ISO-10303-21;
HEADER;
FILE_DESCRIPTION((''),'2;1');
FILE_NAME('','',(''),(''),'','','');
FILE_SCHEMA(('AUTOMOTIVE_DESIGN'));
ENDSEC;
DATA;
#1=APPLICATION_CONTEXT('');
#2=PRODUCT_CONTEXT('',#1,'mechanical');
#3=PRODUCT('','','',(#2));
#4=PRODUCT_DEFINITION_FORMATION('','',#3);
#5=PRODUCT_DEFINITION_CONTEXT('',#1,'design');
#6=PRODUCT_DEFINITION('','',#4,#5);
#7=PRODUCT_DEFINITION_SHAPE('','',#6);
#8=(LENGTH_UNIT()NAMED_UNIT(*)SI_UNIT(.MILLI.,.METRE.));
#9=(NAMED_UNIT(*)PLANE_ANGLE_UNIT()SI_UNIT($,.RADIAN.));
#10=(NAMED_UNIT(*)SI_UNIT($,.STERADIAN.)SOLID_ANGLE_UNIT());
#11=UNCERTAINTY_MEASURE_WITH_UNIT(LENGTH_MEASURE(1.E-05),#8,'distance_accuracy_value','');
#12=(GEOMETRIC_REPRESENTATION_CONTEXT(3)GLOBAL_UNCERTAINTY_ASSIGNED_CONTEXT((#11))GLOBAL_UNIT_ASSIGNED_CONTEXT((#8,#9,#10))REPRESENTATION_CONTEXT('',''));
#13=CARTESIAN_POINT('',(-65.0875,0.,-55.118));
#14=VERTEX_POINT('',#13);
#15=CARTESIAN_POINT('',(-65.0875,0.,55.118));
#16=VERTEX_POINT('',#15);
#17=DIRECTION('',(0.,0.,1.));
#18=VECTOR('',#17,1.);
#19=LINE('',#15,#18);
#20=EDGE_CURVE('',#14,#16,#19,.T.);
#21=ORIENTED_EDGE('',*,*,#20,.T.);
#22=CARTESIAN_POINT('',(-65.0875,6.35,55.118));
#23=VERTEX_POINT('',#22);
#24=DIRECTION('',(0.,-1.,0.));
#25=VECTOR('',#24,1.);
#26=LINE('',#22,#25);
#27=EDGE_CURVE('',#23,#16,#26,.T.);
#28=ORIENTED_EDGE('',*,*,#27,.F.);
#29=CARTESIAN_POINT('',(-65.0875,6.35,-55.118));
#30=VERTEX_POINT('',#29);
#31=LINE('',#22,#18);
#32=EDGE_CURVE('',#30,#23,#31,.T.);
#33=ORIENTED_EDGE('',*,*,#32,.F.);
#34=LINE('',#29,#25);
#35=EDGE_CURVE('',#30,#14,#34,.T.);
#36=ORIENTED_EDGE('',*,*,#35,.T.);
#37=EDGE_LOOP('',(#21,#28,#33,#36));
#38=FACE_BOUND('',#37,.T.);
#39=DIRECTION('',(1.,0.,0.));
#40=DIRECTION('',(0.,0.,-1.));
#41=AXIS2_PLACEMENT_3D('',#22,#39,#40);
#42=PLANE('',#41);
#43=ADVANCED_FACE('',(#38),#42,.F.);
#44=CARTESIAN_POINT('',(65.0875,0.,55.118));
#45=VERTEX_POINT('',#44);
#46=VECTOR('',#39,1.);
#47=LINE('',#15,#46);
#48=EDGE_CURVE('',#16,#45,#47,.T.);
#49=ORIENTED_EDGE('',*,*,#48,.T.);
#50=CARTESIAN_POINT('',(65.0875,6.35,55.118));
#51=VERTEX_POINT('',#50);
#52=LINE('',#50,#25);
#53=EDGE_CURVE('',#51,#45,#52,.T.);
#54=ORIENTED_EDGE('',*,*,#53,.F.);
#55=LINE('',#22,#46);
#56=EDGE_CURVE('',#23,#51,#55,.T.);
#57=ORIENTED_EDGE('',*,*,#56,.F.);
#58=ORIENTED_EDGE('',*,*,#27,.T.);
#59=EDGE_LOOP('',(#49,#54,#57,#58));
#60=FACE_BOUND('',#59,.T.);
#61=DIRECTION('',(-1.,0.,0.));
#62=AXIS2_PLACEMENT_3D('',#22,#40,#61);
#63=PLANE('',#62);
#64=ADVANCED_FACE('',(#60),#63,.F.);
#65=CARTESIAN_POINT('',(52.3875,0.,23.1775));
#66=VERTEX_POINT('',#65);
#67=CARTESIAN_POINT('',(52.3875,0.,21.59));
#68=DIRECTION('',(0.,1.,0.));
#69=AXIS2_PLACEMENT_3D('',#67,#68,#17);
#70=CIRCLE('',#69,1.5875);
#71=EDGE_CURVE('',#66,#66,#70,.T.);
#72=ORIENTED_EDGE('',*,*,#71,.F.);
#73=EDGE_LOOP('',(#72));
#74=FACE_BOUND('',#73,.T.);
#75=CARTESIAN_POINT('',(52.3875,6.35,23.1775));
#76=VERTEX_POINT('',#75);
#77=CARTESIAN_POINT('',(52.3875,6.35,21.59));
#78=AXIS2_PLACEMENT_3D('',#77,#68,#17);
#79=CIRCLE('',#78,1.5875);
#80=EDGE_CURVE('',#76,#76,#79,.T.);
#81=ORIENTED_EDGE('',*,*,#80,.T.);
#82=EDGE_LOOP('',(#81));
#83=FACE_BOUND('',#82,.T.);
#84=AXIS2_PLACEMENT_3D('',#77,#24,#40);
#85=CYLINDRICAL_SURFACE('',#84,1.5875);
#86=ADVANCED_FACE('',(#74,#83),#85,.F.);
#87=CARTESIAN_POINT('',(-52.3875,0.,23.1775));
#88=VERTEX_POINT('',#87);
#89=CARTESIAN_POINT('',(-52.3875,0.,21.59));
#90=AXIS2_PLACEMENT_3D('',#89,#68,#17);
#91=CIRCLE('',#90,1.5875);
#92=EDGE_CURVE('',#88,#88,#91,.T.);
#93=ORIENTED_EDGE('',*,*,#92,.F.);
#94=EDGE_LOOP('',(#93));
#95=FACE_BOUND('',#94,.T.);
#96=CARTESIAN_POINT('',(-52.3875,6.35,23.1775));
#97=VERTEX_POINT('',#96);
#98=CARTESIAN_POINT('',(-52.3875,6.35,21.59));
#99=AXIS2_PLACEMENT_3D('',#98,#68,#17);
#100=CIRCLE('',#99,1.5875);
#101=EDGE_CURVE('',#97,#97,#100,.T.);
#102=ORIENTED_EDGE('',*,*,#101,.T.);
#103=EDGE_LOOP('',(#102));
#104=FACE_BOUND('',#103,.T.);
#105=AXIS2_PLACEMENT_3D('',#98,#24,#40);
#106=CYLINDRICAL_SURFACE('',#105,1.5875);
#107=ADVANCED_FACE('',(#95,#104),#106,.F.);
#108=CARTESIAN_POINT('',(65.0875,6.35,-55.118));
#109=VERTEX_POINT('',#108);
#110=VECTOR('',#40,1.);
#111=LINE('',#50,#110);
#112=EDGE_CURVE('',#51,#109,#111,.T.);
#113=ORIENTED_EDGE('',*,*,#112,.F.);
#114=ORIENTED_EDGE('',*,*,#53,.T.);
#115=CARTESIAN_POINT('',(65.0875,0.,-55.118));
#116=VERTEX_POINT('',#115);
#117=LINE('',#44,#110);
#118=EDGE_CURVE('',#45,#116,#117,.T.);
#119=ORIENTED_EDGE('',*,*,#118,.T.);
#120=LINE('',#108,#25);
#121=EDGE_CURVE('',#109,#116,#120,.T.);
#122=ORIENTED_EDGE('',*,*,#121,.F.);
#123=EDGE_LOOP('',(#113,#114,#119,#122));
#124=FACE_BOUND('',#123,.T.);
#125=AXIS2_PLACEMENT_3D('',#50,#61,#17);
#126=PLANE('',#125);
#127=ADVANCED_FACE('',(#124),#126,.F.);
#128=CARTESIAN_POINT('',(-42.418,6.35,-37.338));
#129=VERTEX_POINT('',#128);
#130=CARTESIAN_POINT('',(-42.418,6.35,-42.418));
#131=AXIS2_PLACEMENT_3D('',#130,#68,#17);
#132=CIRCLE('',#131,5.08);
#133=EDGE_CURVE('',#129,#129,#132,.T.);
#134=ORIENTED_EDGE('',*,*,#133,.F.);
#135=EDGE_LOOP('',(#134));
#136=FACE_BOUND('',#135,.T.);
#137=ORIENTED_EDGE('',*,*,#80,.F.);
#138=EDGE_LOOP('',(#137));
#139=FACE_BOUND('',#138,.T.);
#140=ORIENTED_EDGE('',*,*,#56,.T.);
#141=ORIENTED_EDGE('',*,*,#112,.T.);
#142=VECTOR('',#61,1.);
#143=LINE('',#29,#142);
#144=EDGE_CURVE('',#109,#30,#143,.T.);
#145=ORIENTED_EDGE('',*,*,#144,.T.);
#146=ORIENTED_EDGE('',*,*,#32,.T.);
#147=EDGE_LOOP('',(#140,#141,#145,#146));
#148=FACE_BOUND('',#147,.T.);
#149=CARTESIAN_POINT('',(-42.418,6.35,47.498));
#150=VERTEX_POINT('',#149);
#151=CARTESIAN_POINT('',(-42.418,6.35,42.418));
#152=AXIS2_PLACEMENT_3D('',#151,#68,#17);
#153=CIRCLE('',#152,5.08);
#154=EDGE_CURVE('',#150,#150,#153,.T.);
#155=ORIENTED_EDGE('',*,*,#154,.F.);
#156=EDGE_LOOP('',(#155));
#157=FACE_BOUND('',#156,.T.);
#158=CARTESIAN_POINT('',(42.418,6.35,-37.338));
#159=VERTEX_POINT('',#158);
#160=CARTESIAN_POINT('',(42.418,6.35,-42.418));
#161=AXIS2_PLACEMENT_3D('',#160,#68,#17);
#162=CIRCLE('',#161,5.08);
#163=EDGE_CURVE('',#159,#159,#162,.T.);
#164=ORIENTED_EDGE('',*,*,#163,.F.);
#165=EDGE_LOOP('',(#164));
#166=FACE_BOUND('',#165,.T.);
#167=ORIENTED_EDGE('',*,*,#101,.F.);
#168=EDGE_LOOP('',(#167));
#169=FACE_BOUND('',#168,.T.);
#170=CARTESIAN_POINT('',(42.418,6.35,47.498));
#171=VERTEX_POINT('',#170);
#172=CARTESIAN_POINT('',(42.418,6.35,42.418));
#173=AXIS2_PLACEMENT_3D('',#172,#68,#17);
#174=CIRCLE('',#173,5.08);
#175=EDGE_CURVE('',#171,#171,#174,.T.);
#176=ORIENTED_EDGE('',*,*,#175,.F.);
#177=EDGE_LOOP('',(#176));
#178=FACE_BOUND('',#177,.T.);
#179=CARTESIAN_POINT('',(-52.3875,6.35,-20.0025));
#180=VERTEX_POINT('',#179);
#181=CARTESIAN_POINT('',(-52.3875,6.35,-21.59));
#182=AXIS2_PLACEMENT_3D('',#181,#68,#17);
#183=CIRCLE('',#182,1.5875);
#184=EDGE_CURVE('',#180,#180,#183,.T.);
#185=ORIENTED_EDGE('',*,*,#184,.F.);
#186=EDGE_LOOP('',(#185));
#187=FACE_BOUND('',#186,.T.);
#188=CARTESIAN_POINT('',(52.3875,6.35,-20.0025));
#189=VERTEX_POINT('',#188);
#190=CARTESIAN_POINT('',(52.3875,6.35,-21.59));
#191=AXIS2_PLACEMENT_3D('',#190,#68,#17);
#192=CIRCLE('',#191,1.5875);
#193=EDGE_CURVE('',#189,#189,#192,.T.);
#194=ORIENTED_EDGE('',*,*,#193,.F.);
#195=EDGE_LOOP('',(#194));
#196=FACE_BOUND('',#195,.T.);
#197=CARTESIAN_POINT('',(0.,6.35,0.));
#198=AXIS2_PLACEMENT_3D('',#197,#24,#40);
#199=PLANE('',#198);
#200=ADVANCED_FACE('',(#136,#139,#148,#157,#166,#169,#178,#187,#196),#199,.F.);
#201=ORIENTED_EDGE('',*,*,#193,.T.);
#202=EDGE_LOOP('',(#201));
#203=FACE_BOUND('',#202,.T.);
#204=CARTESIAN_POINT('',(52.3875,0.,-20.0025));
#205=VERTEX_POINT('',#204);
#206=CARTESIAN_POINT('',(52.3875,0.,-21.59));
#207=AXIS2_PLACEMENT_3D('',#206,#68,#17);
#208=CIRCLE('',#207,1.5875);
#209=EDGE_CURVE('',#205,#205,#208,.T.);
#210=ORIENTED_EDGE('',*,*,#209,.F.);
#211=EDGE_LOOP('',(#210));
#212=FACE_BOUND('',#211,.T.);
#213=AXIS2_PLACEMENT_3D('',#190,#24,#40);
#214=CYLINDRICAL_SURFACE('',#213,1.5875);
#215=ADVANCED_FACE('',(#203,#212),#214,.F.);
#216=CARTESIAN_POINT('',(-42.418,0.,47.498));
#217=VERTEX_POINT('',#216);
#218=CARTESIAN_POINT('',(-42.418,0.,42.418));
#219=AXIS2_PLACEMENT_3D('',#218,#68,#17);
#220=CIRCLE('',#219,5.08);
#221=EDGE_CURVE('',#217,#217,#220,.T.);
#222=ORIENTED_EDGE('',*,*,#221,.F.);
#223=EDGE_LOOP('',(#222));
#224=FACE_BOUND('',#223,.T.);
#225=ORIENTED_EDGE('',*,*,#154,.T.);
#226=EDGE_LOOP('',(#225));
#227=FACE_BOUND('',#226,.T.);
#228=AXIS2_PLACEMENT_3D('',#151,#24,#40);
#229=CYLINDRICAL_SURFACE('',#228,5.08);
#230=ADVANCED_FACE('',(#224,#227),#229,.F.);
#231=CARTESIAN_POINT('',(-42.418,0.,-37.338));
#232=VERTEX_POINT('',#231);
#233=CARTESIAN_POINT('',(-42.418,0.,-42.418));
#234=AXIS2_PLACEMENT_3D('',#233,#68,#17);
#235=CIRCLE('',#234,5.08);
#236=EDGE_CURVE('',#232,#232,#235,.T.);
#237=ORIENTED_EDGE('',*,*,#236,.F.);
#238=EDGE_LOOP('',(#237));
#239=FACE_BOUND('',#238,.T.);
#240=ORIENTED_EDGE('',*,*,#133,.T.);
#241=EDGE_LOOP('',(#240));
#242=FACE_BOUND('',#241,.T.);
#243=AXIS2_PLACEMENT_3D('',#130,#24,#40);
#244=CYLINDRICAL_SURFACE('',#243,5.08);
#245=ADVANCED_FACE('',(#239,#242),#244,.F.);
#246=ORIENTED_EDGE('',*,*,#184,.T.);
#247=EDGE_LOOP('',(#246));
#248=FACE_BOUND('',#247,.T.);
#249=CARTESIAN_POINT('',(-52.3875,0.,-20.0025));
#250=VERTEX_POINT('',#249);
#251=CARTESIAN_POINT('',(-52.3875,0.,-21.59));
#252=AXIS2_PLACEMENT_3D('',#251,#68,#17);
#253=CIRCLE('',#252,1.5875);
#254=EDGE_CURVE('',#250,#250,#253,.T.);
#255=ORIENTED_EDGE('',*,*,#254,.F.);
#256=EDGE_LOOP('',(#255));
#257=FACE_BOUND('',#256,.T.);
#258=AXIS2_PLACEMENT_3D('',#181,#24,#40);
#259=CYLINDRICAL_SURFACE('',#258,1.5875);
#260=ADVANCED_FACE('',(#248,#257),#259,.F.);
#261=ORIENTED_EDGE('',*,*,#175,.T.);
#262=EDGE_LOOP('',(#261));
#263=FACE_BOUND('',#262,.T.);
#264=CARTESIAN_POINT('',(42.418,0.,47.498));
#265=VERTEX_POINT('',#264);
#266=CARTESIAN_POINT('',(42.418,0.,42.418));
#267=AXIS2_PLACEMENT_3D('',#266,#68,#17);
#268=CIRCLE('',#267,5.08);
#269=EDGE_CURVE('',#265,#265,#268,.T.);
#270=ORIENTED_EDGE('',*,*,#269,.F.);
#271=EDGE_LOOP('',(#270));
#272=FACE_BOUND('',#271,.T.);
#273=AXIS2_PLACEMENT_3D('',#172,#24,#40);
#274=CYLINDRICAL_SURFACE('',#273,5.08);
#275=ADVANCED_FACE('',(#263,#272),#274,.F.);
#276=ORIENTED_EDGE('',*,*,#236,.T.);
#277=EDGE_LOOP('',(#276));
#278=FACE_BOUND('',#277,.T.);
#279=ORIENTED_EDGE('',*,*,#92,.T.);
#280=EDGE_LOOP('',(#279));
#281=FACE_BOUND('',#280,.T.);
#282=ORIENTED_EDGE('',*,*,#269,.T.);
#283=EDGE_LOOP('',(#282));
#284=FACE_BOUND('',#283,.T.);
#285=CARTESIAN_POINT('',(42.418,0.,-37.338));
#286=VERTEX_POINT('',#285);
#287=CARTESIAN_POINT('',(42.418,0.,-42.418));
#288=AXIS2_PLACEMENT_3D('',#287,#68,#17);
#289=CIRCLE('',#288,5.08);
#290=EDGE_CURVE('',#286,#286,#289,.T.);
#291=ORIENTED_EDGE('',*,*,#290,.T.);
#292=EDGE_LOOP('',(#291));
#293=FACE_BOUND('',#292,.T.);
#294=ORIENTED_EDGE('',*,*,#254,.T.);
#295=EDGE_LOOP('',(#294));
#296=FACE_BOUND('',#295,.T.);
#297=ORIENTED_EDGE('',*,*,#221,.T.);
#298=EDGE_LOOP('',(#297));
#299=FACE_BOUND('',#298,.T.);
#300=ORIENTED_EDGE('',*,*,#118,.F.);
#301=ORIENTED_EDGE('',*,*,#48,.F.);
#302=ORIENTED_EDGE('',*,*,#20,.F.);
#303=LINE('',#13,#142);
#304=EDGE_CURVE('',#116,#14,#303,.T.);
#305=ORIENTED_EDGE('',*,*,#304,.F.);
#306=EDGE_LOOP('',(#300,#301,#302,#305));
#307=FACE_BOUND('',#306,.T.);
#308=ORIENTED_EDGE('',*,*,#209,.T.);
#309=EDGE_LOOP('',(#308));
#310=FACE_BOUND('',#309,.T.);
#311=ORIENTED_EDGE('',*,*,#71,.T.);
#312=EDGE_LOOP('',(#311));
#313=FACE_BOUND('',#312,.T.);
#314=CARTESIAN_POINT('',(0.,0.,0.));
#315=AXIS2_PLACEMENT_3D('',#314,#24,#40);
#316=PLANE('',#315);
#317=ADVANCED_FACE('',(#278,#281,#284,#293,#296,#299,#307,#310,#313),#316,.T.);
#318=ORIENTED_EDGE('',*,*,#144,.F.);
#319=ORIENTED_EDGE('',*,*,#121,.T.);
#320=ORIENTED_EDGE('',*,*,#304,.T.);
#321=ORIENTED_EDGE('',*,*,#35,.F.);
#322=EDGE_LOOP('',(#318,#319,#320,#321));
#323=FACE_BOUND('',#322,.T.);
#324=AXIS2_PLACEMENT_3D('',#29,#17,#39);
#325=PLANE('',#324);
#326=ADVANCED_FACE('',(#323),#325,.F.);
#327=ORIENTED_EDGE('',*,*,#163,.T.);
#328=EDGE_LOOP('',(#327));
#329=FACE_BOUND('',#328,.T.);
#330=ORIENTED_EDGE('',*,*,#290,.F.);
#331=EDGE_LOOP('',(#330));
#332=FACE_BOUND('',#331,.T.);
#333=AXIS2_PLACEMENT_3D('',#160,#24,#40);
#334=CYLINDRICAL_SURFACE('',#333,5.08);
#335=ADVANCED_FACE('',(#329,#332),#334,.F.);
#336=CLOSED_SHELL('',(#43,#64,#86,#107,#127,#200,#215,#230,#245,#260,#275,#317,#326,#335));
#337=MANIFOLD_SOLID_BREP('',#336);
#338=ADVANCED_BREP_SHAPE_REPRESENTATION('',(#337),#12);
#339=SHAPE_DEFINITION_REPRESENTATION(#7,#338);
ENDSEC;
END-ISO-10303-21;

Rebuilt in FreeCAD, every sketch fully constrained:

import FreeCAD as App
import Part
import Sketcher

V = App.Vector
Q = App.Units.Quantity

doc = App.newDocument("Part")
body = doc.addObject("PartDesign::Body", "Body")

sketch1 = body.newObject("Sketcher::SketchObject", "Sketch")
sketch1.AttachmentSupport = (doc.getObject("XZ_Plane"), [""])
sketch1.MapMode = "FlatFace"
sketch1.addGeometry([
    Part.LineSegment(V(-65.1, -55.1, 0), V(-65.1, 55.1, 0)),
    Part.LineSegment(V(-65.1, 55.1, 0), V(65.1, 55.1, 0)),
    Part.LineSegment(V(65.1, 55.1, 0), V(65.1, -55.1, 0)),
    Part.LineSegment(V(65.1, -55.1, 0), V(-65.1, -55.1, 0)),
    Part.Circle(V(-42.4, 42.4, 0), V(0, 0, 1), 5.1),
    Part.Circle(V(-52.4, 21.6, 0), V(0, 0, 1), 1.6),
    Part.Circle(V(42.4, 42.4, 0), V(0, 0, 1), 5.1),
    Part.Circle(V(52.4, 21.6, 0), V(0, 0, 1), 1.6),
    Part.Circle(V(-52.4, -21.6, 0), V(0, 0, 1), 1.6),
    Part.Circle(V(-42.4, -42.4, 0), V(0, 0, 1), 5.1),
    Part.Circle(V(52.4, -21.6, 0), V(0, 0, 1), 1.6),
    Part.Circle(V(42.4, -42.4, 0), V(0, 0, 1), 5.1),
], False)
sketch1.addConstraint([
    Sketcher.Constraint("Coincident", 0, 2, 1, 1),
    Sketcher.Constraint("Coincident", 1, 2, 2, 1),
    Sketcher.Constraint("Coincident", 2, 2, 3, 1),
    Sketcher.Constraint("Coincident", 3, 2, 0, 1),
    Sketcher.Constraint("Vertical", 0),
    Sketcher.Constraint("Horizontal", 1),
    Sketcher.Constraint("Vertical", 2),
    Sketcher.Constraint("Horizontal", 3),
    Sketcher.Constraint("Equal", 4, 6),
    Sketcher.Constraint("Equal", 5, 7),
    Sketcher.Constraint("Equal", 7, 8),
    Sketcher.Constraint("Equal", 6, 9),
    Sketcher.Constraint("Equal", 8, 10),
    Sketcher.Constraint("Equal", 9, 11),
    Sketcher.Constraint("Symmetric", 7, 3, 8, 3, -1, 1),
    Sketcher.Constraint("Symmetric", 6, 3, 9, 3, -1, 1),
    Sketcher.Constraint("Symmetric", 5, 3, 10, 3, -1, 1),
    Sketcher.Constraint("Symmetric", 4, 3, 11, 3, -1, 1),
    Sketcher.Constraint("Symmetric", 0, 2, 2, 2, -1, 1),
    Sketcher.Constraint("Symmetric", 4, 3, 6, 3, -2),
    Sketcher.Constraint("Symmetric", 5, 3, 7, 3, -2),
    Sketcher.Constraint("Diameter", 4, Q("0.4 in")),
    Sketcher.Constraint("Diameter", 5, Q("0.125 in")),
    Sketcher.Constraint("DistanceY", 0, 1, 0, 2, Q("4.34 in")),
    Sketcher.Constraint("DistanceY", 8, 3, 5, 3, Q("1.7 in")),
    Sketcher.Constraint("DistanceY", 4, 3, 0, 2, Q("0.5 in")),
    Sketcher.Constraint("DistanceX", 0, 2, 5, 3, Q("0.5 in")),
    Sketcher.Constraint("DistanceX", 1, 1, 1, 2, Q("5.125 in")),
    Sketcher.Constraint("DistanceX", 4, 3, -1, 1, Q("1.67 in")),
])
pad1 = body.newObject("PartDesign::Pad", "Pad")
pad1.Profile = sketch1
pad1.Length = Q("0.25 in")
pad1.Reversed = True

doc.recompute()
